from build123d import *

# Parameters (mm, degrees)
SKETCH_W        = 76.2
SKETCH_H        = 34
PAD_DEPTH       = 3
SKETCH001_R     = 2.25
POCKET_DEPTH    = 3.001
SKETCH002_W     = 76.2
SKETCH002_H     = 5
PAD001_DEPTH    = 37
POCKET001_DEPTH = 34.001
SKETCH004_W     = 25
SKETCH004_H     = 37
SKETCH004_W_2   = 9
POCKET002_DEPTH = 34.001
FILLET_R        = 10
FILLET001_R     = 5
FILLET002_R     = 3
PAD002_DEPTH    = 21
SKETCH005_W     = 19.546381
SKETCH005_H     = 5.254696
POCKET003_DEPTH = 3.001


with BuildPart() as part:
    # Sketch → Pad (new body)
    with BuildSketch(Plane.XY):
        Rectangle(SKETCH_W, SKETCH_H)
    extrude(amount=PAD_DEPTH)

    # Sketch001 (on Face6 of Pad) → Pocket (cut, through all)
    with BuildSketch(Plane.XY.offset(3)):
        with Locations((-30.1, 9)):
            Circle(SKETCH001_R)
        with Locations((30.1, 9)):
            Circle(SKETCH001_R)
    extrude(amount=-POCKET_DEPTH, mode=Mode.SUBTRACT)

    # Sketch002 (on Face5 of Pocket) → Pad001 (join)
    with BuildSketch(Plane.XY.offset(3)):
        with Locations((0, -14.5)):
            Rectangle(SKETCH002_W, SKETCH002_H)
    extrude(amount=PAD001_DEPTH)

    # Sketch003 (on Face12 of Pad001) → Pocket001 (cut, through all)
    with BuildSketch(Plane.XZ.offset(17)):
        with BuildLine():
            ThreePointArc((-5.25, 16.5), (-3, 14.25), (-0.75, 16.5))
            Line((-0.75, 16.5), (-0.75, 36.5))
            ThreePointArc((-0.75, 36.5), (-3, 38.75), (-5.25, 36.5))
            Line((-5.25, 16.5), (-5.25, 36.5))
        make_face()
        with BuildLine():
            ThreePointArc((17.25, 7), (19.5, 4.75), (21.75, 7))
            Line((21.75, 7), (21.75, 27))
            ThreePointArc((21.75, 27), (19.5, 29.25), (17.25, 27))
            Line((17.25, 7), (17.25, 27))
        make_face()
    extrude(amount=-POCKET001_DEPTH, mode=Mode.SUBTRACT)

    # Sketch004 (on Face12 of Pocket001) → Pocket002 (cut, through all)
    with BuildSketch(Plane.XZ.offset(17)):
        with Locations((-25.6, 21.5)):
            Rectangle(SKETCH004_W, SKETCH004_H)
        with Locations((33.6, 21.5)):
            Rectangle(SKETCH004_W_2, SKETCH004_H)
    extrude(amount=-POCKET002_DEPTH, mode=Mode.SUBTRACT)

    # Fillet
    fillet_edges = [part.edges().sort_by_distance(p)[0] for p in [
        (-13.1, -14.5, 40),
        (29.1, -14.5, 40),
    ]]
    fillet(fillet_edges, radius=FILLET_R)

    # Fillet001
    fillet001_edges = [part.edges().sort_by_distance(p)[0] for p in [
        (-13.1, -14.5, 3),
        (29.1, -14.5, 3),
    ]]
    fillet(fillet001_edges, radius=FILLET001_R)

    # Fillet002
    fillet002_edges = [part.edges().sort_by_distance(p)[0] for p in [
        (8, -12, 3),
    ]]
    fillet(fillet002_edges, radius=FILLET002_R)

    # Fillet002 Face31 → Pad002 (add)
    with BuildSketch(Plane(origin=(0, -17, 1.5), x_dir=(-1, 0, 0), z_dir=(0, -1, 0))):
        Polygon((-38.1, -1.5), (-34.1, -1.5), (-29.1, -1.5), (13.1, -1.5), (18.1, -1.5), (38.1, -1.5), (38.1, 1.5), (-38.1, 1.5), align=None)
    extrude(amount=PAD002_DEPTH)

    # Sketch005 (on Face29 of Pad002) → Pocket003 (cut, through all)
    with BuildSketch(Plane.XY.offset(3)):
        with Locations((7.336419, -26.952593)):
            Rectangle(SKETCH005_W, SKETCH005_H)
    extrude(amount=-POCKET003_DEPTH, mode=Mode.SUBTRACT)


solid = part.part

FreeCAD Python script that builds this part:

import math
import FreeCAD as App
import Part
import Sketcher
Q = App.Units.Quantity


def edges_at(feature, points):
    """Names of the edges that pass closest to the given points."""
    edges = feature.Shape.Edges
    near = lambda p: min(range(len(edges)), key=lambda i: edges[i].distToShape(Part.Vertex(*p))[0])
    return sorted({f"Edge{near(p) + 1}" for p in points})


def add_polygon(sketch, points):
    """Adds a closed chain of lines whose ends are joined by coincident constraints."""
    first, n = sketch.GeometryCount, len(points)
    for a, b in zip(points, points[1:] + points[:1]):
        sketch.addGeometry(Part.LineSegment(App.Vector(*a, 0), App.Vector(*b, 0)), False)
    for i in range(n):
        sketch.addConstraint(Sketcher.Constraint("Coincident", first + i, 2, first + (i + 1) % n, 1))

doc = App.newDocument("Part")
body = doc.addObject("PartDesign::Body", "Body")

sketch1 = body.newObject("Sketcher::SketchObject", "Sketch")
sketch1.AttachmentSupport = (doc.getObject("XY_Plane"), [""])
sketch1.MapMode = "FlatFace"
add_polygon(sketch1, [(-38.1, 17), (-38.1, -17), (38.1, -17), (38.1, 17)])
sketch1.addConstraint(Sketcher.Constraint("Vertical", 0))
sketch1.addConstraint(Sketcher.Constraint("Horizontal", 1))
sketch1.addConstraint(Sketcher.Constraint("Vertical", 2))
sketch1.addConstraint(Sketcher.Constraint("Horizontal", 3))
sketch1.addConstraint(Sketcher.Constraint("Symmetric", 0, 2, 2, 2, -1, 1))
sketch1.addConstraint(Sketcher.Constraint("DistanceY", 0, 2, 0, 1, Q("34 mm")))
sketch1.addConstraint(Sketcher.Constraint("DistanceX", 1, 1, 1, 2, Q("76.2 mm")))
pad1 = body.newObject("PartDesign::Pad", "Pad")
pad1.Profile = sketch1
pad1.Length = 3

sketch2 = body.newObject("Sketcher::SketchObject", "Sketch001")
sketch2.AttachmentSupport = (doc.getObject("XY_Plane"), [""])
sketch2.MapMode = "FlatFace"
sketch2.AttachmentOffset = App.Placement(App.Vector(0, 0, 3), App.Rotation())
sketch2.addGeometry(Part.Circle(App.Vector(-30.1, 9, 0), App.Vector(0, 0, 1), 2.25), False)
sketch2.addGeometry(Part.Circle(App.Vector(30.1, 9, 0), App.Vector(0, 0, 1), 2.25), False)
sketch2.addConstraint(Sketcher.Constraint("Equal", 0, 1))
sketch2.addConstraint(Sketcher.Constraint("Symmetric", 0, 3, 1, 3, -2))
sketch2.addConstraint(Sketcher.Constraint("Diameter", 0, Q("4.5 mm")))
sketch2.addConstraint(Sketcher.Constraint("DistanceY", -1, 1, 0, 3, Q("9 mm")))
sketch2.addConstraint(Sketcher.Constraint("DistanceX", 0, 3, -1, 1, Q("30.1 mm")))
pocket1 = body.newObject("PartDesign::Pocket", "Pocket")
pocket1.Profile = sketch2
pocket1.Type = "ThroughAll"

sketch3 = body.newObject("Sketcher::SketchObject", "Sketch002")
sketch3.AttachmentSupport = (doc.getObject("XY_Plane"), [""])
sketch3.MapMode = "FlatFace"
sketch3.AttachmentOffset = App.Placement(App.Vector(0, 0, 3), App.Rotation())
add_polygon(sketch3, [(-38.1, -12), (-38.1, -17), (38.1, -17), (38.1, -12)])
sketch3.addConstraint(Sketcher.Constraint("Vertical", 0))
sketch3.addConstraint(Sketcher.Constraint("Horizontal", 1))
sketch3.addConstraint(Sketcher.Constraint("Vertical", 2))
sketch3.addConstraint(Sketcher.Constraint("Horizontal", 3))
sketch3.addConstraint(Sketcher.Constraint("DistanceY", 0, 2, 0, 1, Q("5 mm")))
sketch3.addConstraint(Sketcher.Constraint("DistanceX", 1, 1, 1, 2, Q("76.2 mm")))
sketch3.addConstraint(Sketcher.Constraint("DistanceY", 0, 2, -1, 1, Q("17 mm")))
sketch3.addConstraint(Sketcher.Constraint("DistanceX", 0, 2, -1, 1, Q("38.1 mm")))
pad2 = body.newObject("PartDesign::Pad", "Pad001")
pad2.Profile = sketch3
pad2.Length = 37

sketch4 = body.newObject("Sketcher::SketchObject", "Sketch003")
sketch4.AttachmentSupport = (doc.getObject("XZ_Plane"), [""])
sketch4.MapMode = "FlatFace"
sketch4.AttachmentOffset = App.Placement(App.Vector(0, 0, 17), App.Rotation())
sketch4.addGeometry(Part.ArcOfCircle(Part.Circle(App.Vector(-3, 16.5, 0), App.Vector(0, 0, 1), 2.25), math.radians(180), math.radians(360)), False)
sketch4.addGeometry(Part.LineSegment(App.Vector(-0.75, 16.5, 0), App.Vector(-0.75, 36.5, 0)), False)
sketch4.addGeometry(Part.ArcOfCircle(Part.Circle(App.Vector(-3, 36.5, 0), App.Vector(0, 0, 1), 2.25), math.radians(0), math.radians(180)), False)
sketch4.addGeometry(Part.LineSegment(App.Vector(-5.25, 36.5, 0), App.Vector(-5.25, 16.5, 0)), False)
sketch4.addGeometry(Part.ArcOfCircle(Part.Circle(App.Vector(19.5, 7, 0), App.Vector(0, 0, 1), 2.25), math.radians(180), math.radians(360)), False)
sketch4.addGeometry(Part.LineSegment(App.Vector(21.75, 7, 0), App.Vector(21.75, 27, 0)), False)
sketch4.addGeometry(Part.ArcOfCircle(Part.Circle(App.Vector(19.5, 27, 0), App.Vector(0, 0, 1), 2.25), math.radians(0), math.radians(180)), False)
sketch4.addGeometry(Part.LineSegment(App.Vector(17.25, 27, 0), App.Vector(17.25, 7, 0)), False)
sketch4.addConstraint(Sketcher.Constraint("Tangent", 0, 2, 1, 1))
sketch4.addConstraint(Sketcher.Constraint("Tangent", 1, 2, 2, 1))
sketch4.addConstraint(Sketcher.Constraint("Tangent", 2, 2, 3, 1))
sketch4.addConstraint(Sketcher.Constraint("Tangent", 3, 2, 0, 1))
sketch4.addConstraint(Sketcher.Constraint("Tangent", 4, 2, 5, 1))
sketch4.addConstraint(Sketcher.Constraint("Tangent", 5, 2, 6, 1))
sketch4.addConstraint(Sketcher.Constraint("Tangent", 6, 2, 7, 1))
sketch4.addConstraint(Sketcher.Constraint("Tangent", 7, 2, 4, 1))
sketch4.addConstraint(Sketcher.Constraint("Vertical", 1))
sketch4.addConstraint(Sketcher.Constraint("Vertical", 3))
sketch4.addConstraint(Sketcher.Constraint("Vertical", 5))
sketch4.addConstraint(Sketcher.Constraint("Vertical", 7))
sketch4.addConstraint(Sketcher.Constraint("Equal", 2, 4))
sketch4.addConstraint(Sketcher.Constraint("Equal", 3, 5))
sketch4.addConstraint(Sketcher.Constraint("DistanceY", 1, 1, 1, 2, Q("20 mm")))
sketch4.addConstraint(Sketcher.Constraint("Radius", 0, Q("2.25 mm")))
sketch4.addConstraint(Sketcher.Constraint("DistanceX", 0, 3, -1, 1, Q("3 mm")))
sketch4.addConstraint(Sketcher.Constraint("DistanceY", -1, 1, 4, 3, Q("7 mm")))
sketch4.addConstraint(Sketcher.Constraint("DistanceX", 3, 2, 4, 2, Q("27 mm")))
sketch4.addConstraint(Sketcher.Constraint("DistanceY", -1, 1, 0, 3, Q("16.5 mm")))
pocket2 = body.newObject("PartDesign::Pocket", "Pocket001")
pocket2.Profile = sketch4
pocket2.Type = "ThroughAll"

sketch5 = body.newObject("Sketcher::SketchObject", "Sketch004")
sketch5.AttachmentSupport = (doc.getObject("XZ_Plane"), [""])
sketch5.MapMode = "FlatFace"
sketch5.AttachmentOffset = App.Placement(App.Vector(0, 0, 17), App.Rotation())
add_polygon(sketch5, [(-38.1, 40), (-38.1, 3), (-13.1, 3), (-13.1, 40)])
add_polygon(sketch5, [(29.1, 40), (29.1, 3), (38.1, 3), (38.1, 40)])
sketch5.addConstraint(Sketcher.Constraint("Vertical", 0))
sketch5.addConstraint(Sketcher.Constraint("Horizontal", 1))
sketch5.addConstraint(Sketcher.Constraint("Vertical", 2))
sketch5.addConstraint(Sketcher.Constraint("Horizontal", 3))
sketch5.addConstraint(Sketcher.Constraint("Vertical", 4))
sketch5.addConstraint(Sketcher.Constraint("Horizontal", 5))
sketch5.addConstraint(Sketcher.Constraint("Vertical", 6))
sketch5.addConstraint(Sketcher.Constraint("Horizontal", 7))
sketch5.addConstraint(Sketcher.Constraint("Symmetric", 0, 2, 5, 2, -2))
sketch5.addConstraint(Sketcher.Constraint("Horizontal", 3, 2, 6, 2))
sketch5.addConstraint(Sketcher.Constraint("DistanceX", 1, 1, 1, 2, Q("25 mm")))
sketch5.addConstraint(Sketcher.Constraint("DistanceX", 5, 1, 5, 2, Q("9 mm")))
sketch5.addConstraint(Sketcher.Constraint("DistanceY", 0, 2, 0, 1, Q("37 mm")))
sketch5.addConstraint(Sketcher.Constraint("DistanceY", -1, 1, 0, 2, Q("3 mm")))
sketch5.addConstraint(Sketcher.Constraint("DistanceX", 0, 2, -1, 1, Q("38.1 mm")))
pocket3 = body.newObject("PartDesign::Pocket", "Pocket002")
pocket3.Profile = sketch5
pocket3.Type = "ThroughAll"
doc.recompute()

fillet = body.newObject("PartDesign::Fillet", "Fillet")
fillet.Base = (pocket3, edges_at(pocket3, [(-13.1, -14.5, 40), (29.1, -14.5, 40)]))
fillet.Radius = 10
doc.recompute()

fillet2 = body.newObject("PartDesign::Fillet", "Fillet001")
fillet2.Base = (fillet, edges_at(fillet, [(-13.1, -14.5, 3), (29.1, -14.5, 3)]))
fillet2.Radius = 5
doc.recompute()

fillet3 = body.newObject("PartDesign::Fillet", "Fillet002")
fillet3.Base = (fillet2, edges_at(fillet2, [(8, -12, 3)]))
fillet3.Radius = 3

sketch6 = body.newObject("Sketcher::SketchObject", "Sketch005")
sketch6.AttachmentSupport = (doc.getObject("XZ_Plane"), [""])
sketch6.MapMode = "FlatFace"
sketch6.AttachmentOffset = App.Placement(App.Vector(0, 0, 17), App.Rotation())
add_polygon(sketch6, [(38.1, 3), (-38.1, 3), (-38.1, 0), (38.1, 0)])
sketch6.addConstraint(Sketcher.Constraint("Horizontal", 0))
sketch6.addConstraint(Sketcher.Constraint("Vertical", 1))
sketch6.addConstraint(Sketcher.Constraint("Horizontal", 2))
sketch6.addConstraint(Sketcher.Constraint("Vertical", 3))
sketch6.addConstraint(Sketcher.Constraint("Symmetric", 1, 2, 2, 2, -1, 1))
sketch6.addConstraint(Sketcher.Constraint("DistanceY", 1, 2, 1, 1, Q("3 mm")))
sketch6.addConstraint(Sketcher.Constraint("DistanceX", 0, 2, 0, 1, Q("76.2 mm")))
pad3 = body.newObject("PartDesign::Pad", "Pad002")
pad3.Profile = sketch6
pad3.Length = 21

sketch7 = body.newObject("Sketcher::SketchObject", "Sketch006")
sketch7.AttachmentSupport = (doc.getObject("XY_Plane"), [""])
sketch7.MapMode = "FlatFace"
sketch7.AttachmentOffset = App.Placement(App.Vector(0, 0, 3), App.Rotation())
add_polygon(sketch7, [(-2.436771, -24.325245), (-2.436771, -29.579941), (17.10961, -29.579941), (17.10961, -24.325245)])
sketch7.addConstraint(Sketcher.Constraint("Vertical", 0))
sketch7.addConstraint(Sketcher.Constraint("Horizontal", 1))
sketch7.addConstraint(Sketcher.Constraint("Vertical", 2))
sketch7.addConstraint(Sketcher.Constraint("Horizontal", 3))
sketch7.addConstraint(Sketcher.Constraint("DistanceX", 1, 1, 1, 2, Q("19.546381 mm")))
sketch7.addConstraint(Sketcher.Constraint("DistanceY", 0, 2, 0, 1, Q("5.254696 mm")))
sketch7.addConstraint(Sketcher.Constraint("DistanceX", 0, 2, -1, 1, Q("2.436771 mm")))
sketch7.addConstraint(Sketcher.Constraint("DistanceY", 0, 2, -1, 1, Q("29.579941 mm")))
pocket4 = body.newObject("PartDesign::Pocket", "Pocket003")
pocket4.Profile = sketch7
pocket4.Type = "ThroughAll"

doc.recompute()
